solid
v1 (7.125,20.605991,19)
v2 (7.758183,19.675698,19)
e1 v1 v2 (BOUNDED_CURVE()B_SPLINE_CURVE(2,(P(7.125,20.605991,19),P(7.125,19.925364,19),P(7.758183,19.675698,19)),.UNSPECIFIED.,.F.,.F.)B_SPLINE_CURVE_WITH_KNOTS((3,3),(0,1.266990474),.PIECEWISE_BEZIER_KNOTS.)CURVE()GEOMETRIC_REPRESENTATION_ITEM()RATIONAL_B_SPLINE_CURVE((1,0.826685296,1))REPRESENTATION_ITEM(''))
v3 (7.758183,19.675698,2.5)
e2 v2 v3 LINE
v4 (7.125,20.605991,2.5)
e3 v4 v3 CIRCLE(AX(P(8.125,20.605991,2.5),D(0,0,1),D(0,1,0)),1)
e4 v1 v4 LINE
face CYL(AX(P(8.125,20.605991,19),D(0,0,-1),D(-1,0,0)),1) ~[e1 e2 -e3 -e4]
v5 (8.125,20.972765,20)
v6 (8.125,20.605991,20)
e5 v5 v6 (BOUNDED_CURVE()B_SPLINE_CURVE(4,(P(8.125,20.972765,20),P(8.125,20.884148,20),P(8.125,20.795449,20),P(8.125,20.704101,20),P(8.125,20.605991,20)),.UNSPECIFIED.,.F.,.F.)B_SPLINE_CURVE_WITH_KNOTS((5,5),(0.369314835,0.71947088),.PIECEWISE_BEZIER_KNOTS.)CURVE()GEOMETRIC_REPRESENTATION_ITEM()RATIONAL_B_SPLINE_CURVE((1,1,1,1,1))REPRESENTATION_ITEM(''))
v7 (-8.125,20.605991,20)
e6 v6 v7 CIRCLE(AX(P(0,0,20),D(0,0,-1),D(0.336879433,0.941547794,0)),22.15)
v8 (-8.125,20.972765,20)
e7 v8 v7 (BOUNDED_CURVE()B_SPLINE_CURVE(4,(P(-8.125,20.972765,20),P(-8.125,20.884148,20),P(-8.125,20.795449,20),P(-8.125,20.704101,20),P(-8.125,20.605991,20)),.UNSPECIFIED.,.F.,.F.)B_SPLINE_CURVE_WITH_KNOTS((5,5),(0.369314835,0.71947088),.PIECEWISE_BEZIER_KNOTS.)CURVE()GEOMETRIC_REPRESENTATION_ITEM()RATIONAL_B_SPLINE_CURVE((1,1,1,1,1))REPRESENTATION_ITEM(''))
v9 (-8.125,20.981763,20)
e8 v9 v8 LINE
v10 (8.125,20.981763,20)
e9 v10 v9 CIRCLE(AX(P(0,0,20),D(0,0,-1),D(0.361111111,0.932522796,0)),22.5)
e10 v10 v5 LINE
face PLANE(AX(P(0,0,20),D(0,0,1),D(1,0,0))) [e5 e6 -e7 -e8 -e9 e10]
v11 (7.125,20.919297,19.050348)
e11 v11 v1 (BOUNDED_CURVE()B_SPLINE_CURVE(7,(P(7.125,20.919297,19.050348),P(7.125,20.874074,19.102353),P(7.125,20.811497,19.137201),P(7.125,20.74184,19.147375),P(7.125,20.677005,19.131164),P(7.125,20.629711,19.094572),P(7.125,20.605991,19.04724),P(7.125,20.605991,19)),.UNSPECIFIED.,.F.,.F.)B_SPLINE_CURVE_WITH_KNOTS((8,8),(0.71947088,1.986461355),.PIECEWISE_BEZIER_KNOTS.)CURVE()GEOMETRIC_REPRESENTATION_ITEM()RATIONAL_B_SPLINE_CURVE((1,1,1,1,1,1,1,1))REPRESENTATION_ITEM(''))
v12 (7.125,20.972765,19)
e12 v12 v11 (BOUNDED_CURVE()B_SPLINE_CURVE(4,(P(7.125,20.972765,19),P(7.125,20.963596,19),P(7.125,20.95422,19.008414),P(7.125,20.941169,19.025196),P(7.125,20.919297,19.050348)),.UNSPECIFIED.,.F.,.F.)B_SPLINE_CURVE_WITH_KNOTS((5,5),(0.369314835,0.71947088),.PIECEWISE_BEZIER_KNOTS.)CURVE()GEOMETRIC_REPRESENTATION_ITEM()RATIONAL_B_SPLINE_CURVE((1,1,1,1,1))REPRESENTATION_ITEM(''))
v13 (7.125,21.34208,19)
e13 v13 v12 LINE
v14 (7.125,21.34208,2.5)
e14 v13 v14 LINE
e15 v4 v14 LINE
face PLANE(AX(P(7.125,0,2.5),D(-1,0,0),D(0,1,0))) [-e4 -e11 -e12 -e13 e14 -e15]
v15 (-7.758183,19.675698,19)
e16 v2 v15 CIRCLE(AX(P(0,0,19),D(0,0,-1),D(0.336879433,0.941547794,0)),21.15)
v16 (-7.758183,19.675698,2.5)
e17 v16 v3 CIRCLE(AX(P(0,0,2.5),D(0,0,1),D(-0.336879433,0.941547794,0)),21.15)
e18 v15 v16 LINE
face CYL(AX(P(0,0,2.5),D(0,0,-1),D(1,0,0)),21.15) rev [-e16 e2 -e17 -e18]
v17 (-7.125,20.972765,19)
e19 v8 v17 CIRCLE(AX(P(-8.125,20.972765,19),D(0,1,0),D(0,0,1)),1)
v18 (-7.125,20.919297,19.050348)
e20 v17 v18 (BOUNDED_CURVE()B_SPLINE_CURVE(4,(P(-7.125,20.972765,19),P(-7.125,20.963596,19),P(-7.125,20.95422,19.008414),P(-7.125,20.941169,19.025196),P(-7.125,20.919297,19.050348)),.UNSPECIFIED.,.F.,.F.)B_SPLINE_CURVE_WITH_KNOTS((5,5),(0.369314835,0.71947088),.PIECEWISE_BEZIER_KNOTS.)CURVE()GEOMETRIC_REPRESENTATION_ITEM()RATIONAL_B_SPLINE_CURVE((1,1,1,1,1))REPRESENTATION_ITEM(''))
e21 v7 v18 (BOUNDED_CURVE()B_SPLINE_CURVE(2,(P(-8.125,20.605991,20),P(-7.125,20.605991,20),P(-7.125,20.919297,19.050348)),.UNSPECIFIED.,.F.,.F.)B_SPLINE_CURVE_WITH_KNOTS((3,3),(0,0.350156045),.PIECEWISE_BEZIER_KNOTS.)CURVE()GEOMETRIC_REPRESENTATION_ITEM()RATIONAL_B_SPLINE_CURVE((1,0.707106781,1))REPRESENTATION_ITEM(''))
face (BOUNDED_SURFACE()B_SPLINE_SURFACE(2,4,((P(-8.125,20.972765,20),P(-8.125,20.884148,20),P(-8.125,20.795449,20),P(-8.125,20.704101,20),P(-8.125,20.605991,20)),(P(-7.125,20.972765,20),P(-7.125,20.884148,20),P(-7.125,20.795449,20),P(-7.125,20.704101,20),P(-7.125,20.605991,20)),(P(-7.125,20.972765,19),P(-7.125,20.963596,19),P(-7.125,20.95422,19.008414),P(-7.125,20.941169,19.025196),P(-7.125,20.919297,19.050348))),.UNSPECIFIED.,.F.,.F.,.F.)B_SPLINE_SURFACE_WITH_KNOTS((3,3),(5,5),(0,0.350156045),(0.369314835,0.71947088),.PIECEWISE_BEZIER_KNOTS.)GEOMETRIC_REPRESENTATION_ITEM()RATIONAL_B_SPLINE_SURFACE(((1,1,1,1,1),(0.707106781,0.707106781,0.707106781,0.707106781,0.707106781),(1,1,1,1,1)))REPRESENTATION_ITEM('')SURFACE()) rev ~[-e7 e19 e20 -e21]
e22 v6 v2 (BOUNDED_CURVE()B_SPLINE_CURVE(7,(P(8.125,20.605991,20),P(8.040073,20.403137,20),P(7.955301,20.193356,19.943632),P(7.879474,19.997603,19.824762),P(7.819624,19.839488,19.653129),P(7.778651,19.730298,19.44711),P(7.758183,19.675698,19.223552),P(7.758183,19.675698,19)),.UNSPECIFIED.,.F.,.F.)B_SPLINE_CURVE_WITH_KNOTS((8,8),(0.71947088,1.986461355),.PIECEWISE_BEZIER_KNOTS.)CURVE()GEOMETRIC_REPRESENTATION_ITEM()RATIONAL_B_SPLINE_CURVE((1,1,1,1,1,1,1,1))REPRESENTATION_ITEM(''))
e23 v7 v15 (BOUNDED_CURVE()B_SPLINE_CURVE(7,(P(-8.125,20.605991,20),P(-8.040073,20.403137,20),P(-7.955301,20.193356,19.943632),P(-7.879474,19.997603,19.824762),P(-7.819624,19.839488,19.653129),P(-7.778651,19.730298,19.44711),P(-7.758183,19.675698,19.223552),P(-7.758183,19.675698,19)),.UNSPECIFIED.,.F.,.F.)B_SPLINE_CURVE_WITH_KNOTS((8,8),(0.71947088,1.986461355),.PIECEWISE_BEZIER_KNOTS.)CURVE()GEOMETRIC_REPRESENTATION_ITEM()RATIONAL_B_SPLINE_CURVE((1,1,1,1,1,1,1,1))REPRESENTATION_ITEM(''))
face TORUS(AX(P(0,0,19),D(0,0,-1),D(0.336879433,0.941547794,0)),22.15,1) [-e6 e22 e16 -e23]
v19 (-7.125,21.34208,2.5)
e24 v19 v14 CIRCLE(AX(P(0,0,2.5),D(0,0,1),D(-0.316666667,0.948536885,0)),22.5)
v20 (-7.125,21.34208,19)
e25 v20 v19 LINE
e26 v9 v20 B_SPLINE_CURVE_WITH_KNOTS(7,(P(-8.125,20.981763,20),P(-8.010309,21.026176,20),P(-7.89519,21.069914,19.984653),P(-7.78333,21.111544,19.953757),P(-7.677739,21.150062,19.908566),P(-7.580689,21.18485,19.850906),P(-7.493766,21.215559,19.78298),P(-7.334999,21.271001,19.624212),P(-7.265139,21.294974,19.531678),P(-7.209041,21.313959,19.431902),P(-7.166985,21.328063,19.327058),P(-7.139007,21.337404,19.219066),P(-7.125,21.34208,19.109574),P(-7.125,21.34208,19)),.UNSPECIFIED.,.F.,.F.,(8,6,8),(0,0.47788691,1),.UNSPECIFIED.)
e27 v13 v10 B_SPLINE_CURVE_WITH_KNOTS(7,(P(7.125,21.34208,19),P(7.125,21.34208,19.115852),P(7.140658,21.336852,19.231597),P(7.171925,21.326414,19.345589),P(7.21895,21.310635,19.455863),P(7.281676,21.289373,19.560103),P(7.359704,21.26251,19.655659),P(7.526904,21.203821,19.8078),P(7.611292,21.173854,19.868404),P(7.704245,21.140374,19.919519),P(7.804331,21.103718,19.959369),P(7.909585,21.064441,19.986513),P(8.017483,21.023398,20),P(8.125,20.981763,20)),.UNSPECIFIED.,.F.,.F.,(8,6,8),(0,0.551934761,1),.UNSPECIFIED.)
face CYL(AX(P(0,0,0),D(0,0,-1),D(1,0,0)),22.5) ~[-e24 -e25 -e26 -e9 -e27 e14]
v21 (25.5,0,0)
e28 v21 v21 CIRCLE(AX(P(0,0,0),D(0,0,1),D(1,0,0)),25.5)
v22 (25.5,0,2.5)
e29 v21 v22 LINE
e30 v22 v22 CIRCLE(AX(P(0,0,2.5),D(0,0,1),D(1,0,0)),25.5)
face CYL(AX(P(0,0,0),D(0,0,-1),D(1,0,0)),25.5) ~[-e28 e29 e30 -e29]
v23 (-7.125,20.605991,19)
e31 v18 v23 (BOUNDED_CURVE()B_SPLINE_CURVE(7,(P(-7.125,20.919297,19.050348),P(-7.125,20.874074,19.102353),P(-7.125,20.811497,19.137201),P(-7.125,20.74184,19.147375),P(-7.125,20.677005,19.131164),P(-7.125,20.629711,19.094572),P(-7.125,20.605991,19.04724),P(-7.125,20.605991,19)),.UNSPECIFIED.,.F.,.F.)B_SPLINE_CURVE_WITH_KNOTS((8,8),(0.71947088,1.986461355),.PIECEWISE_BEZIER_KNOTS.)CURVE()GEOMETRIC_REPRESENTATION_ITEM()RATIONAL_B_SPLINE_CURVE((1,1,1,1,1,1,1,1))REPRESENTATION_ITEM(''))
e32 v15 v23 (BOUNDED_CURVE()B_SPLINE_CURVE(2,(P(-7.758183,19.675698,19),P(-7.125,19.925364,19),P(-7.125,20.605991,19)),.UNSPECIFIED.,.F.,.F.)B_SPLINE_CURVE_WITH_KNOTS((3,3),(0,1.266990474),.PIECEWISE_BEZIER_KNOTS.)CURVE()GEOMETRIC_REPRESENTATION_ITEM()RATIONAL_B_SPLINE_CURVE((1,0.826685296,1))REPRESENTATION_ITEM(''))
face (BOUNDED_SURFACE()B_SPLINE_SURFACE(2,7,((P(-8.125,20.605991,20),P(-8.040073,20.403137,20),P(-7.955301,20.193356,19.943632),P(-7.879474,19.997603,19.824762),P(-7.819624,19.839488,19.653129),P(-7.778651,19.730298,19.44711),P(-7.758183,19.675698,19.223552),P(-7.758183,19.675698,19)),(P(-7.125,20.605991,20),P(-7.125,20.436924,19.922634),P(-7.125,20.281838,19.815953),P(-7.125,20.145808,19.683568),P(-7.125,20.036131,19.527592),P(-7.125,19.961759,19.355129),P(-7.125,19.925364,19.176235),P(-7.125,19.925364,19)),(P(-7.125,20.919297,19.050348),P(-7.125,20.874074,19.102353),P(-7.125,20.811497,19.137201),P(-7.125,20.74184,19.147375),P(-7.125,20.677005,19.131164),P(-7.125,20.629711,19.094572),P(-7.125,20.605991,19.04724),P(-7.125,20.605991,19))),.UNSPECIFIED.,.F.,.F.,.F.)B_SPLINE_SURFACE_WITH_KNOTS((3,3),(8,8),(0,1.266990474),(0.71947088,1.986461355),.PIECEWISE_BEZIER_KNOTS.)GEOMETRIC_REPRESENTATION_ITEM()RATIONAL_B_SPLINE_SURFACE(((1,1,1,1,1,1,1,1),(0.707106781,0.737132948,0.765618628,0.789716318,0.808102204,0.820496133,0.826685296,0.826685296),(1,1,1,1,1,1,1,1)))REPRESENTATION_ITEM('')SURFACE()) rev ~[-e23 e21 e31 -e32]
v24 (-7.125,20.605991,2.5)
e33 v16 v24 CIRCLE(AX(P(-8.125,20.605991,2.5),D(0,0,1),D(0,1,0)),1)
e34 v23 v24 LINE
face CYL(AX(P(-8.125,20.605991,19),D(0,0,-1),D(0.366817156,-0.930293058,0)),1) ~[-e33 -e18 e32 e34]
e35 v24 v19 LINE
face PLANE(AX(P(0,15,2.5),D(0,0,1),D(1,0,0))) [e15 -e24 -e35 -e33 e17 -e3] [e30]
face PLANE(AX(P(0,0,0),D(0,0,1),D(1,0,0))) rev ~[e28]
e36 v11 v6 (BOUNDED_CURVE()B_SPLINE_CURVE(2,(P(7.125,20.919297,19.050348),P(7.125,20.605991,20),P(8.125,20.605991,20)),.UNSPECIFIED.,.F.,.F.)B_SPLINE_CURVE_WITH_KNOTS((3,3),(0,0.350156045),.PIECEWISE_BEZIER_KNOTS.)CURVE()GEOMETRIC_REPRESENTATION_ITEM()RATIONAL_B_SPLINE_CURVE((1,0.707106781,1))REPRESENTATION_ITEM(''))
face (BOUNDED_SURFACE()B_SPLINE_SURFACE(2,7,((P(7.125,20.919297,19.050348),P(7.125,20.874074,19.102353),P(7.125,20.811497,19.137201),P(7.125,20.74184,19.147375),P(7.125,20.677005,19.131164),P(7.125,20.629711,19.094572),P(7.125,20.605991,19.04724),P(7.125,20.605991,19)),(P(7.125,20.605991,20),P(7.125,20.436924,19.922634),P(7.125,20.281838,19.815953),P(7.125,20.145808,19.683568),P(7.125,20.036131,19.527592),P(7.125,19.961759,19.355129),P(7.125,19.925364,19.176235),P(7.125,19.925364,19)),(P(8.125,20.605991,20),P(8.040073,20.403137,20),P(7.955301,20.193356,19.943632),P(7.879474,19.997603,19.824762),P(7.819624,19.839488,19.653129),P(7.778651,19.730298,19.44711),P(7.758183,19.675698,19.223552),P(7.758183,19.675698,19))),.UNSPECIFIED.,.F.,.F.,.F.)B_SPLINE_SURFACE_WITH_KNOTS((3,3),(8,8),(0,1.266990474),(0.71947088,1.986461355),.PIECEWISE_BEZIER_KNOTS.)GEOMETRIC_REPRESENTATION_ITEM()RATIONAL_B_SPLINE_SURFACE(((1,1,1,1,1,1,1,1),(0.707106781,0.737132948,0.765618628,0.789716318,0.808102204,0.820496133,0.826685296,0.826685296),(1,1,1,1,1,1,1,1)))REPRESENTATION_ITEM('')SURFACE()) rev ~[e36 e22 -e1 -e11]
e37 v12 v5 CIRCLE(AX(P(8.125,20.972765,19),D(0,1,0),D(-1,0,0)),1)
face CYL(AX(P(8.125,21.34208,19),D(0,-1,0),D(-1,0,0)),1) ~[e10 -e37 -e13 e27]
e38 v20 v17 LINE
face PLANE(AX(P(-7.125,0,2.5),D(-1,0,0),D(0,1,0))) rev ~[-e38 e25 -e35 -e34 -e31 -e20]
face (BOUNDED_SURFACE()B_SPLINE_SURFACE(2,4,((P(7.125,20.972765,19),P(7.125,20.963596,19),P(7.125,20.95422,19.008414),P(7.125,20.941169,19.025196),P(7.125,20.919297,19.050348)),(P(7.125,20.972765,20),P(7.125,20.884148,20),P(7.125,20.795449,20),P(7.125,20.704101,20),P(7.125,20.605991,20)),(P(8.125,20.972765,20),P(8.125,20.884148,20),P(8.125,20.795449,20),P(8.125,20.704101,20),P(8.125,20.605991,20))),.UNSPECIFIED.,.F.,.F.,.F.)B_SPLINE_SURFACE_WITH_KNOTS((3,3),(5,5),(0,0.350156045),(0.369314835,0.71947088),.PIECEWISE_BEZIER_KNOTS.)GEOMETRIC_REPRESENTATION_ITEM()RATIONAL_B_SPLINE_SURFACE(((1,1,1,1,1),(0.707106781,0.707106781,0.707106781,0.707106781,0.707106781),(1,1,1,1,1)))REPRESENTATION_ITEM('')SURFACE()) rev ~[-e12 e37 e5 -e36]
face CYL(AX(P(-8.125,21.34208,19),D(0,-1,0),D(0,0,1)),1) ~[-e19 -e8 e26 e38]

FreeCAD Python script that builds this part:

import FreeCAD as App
import Part
import Sketcher

V = App.Vector
Q = App.Units.Quantity


def edges_at(feature, points):
    """Names of the edges that pass closest to the given points."""
    edges = feature.Shape.Edges
    near = lambda p: min(range(len(edges)), key=lambda i: edges[i].distToShape(Part.Vertex(*p))[0])
    return sorted({f"Edge{near(p) + 1}" for p in points})


def add_polygon(sketch, points):
    """Adds a closed chain of lines whose ends are joined by coincident constraints."""
    first, n = sketch.GeometryCount, len(points)
    for a, b in zip(points, points[1:] + points[:1]):
        sketch.addGeometry(Part.LineSegment(App.Vector(*a, 0), App.Vector(*b, 0)), False)
    for i in range(n):
        sketch.addConstraint(Sketcher.Constraint("Coincident", first + i, 2, first + (i + 1) % n, 1))

doc = App.newDocument("Part")
body = doc.addObject("PartDesign::Body", "Body")

sketch1 = body.newObject("Sketcher::SketchObject", "Sketch")
sketch1.AttachmentSupport = (doc.getObject("XY_Plane"), [""])
sketch1.MapMode = "FlatFace"
sketch1.AttachmentOffset = App.Placement(V(0, 0, 2.5), App.Rotation())
add_polygon(sketch1, [(-7, 30), (-7, 0), (7, 0), (7, 30)])
sketch1.addConstraint([
    Sketcher.Constraint("Vertical", 0),
    Sketcher.Constraint("Horizontal", 1),
    Sketcher.Constraint("Vertical", 2),
    Sketcher.Constraint("Horizontal", 3),
    Sketcher.Constraint("Symmetric", 0, 2, 1, 2, -1, 1),
    Sketcher.Constraint("DistanceY", 0, 2, 0, 1, Q("30 mm")),
    Sketcher.Constraint("DistanceX", 1, 1, 1, 2, Q("14.25 mm")),
])
pad1 = body.newObject("PartDesign::Pad", "Pad")
pad1.Profile = sketch1
pad1.Length = 20
body2 = doc.addObject("PartDesign::Body", "Body001")

sketch2 = body2.newObject("Sketcher::SketchObject", "Sketch001")
sketch2.AttachmentSupport = (doc.getObject("XY_Plane001"), [""])
sketch2.MapMode = "FlatFace"
sketch2.AttachmentOffset = App.Placement(V(0, 0, 2.5), App.Rotation())
sketch2.addGeometry(Part.Circle(V(0, 0, 0), V(0, 0, 1), 21), False)
sketch2.addConstraint([
    Sketcher.Constraint("Coincident", 0, 3, -1, 1),
    Sketcher.Constraint("Diameter", 0, Q("42.3 mm")),
])
pad2 = body2.newObject("PartDesign::Pad", "Pad001")
pad2.Profile = sketch2
pad2.Length = 30
body3 = doc.addObject("PartDesign::Body", "Body002")

sketch3 = body3.newObject("Sketcher::SketchObject", "Sketch002")
sketch3.AttachmentSupport = (doc.getObject("XY_Plane002"), [""])
sketch3.MapMode = "FlatFace"
sketch3.addGeometry(Part.Circle(V(0, 0, 0), V(0, 0, 1), 22), False)
sketch3.addConstraint([
    Sketcher.Constraint("Coincident", 0, 3, -1, 1),
    Sketcher.Constraint("Diameter", 0, Q("45 mm")),
])
pad3 = body3.newObject("PartDesign::Pad", "Pad002")
pad3.Profile = sketch3
pad3.Length = 20
doc.recompute()

boolean = body3.newObject("PartDesign::Boolean", "Boolean")
boolean.Type = "Cut"
boolean.addObjects([body2])
doc.recompute()

boolean2 = body3.newObject("PartDesign::Boolean", "Boolean001")
boolean2.Type = "Cut"
boolean2.addObjects([body])
doc.recompute()

fillet = body3.newObject("PartDesign::Fillet", "Fillet")
fillet.Base = (boolean2, edges_at(boolean2, [(0, -21.15, 20), (0, -21.15, 20)]))
fillet.Radius = 1
doc.recompute()

fillet2 = body3.newObject("PartDesign::Fillet", "Fillet001")
fillet2.Base = (fillet, edges_at(fillet, [
    (-7.125, 21.157, 20),
    (7.125, 21.157, 20),
    (-7.125, 20.235, 19.717),
    (7.125, 20.235, 19.717),
]))
fillet2.Radius = 1
body4 = doc.addObject("PartDesign::Body", "Body003")

sketch4 = body4.newObject("Sketcher::SketchObject", "Sketch003")
sketch4.AttachmentSupport = (doc.getObject("XY_Plane003"), [""])
sketch4.MapMode = "FlatFace"
sketch4.addGeometry(Part.Circle(V(0, 0, 0), V(0, 0, 1), 26), False)
sketch4.addConstraint([
    Sketcher.Constraint("Coincident", 0, 3, -1, 1),
    Sketcher.Constraint("Diameter", 0, Q("51 mm")),
])
pad4 = body4.newObject("PartDesign::Pad", "Pad003")
pad4.Profile = sketch4
pad4.Length = 2.5
doc.recompute()

boolean3 = body4.newObject("PartDesign::Boolean", "Boolean002")
boolean3.Type = "Fuse"
boolean3.addObjects([body3])

doc.recompute()
